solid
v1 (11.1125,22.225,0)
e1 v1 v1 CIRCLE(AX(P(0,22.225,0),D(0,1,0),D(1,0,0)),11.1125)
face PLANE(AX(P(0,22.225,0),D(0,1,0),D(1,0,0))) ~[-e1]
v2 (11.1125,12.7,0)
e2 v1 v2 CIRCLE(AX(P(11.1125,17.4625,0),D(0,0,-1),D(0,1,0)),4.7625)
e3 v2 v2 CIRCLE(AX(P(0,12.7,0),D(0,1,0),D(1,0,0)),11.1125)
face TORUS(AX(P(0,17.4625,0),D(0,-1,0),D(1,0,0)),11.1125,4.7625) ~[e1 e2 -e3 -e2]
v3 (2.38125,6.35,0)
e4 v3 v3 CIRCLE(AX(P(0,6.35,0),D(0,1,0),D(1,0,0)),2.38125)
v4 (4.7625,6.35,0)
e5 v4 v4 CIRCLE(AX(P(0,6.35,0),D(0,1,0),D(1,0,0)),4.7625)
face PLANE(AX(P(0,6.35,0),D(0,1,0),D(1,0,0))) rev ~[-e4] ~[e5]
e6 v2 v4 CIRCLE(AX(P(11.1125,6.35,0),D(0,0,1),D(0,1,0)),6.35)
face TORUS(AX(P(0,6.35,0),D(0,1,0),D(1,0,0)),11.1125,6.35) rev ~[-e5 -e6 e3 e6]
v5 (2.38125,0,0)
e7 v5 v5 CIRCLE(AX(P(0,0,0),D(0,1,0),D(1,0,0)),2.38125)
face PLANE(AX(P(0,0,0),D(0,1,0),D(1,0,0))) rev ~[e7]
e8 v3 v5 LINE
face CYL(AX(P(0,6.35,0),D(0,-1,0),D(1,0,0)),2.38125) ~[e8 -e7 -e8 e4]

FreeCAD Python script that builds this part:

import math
import FreeCAD as App
import Part
import Sketcher
Q = App.Units.Quantity

doc = App.newDocument("Part")
params = doc.addObject("Spreadsheet::Sheet", "Params")
for row, (alias, value) in enumerate([
    ("sketch1_radius", "0.25 in"),
    ("sketch1_radius2", "0.1875 in"),
    ("sketch1_height", "0.25 in"),
    ("sketch1_width", "0.09375 in"),
    ("revolution_angle", "360 deg"),
], start=1):
    params.set(f"A{row}", alias)
    params.set(f"B{row}", "=" + value)
    params.setAlias(f"B{row}", alias)

body = doc.addObject("PartDesign::Body", "Body")

sketch1 = body.newObject("Sketcher::SketchObject", "Sketch")
sketch1.AttachmentSupport = (doc.getObject("XY_Plane"), [""])
sketch1.MapMode = "FlatFace"
sketch1.addGeometry([
    Part.LineSegment(App.Vector(0, 22.2, 0), App.Vector(0, 0, 0)),
    Part.LineSegment(App.Vector(0, 0, 0), App.Vector(2.4, 0, 0)),
    Part.LineSegment(App.Vector(2.4, 0, 0), App.Vector(2.4, 6.3, 0)),
    Part.LineSegment(App.Vector(2.4, 6.3, 0), App.Vector(4.8, 6.3, 0)),
    Part.ArcOfCircle(Part.Circle(App.Vector(11.1, 6.4, 0), App.Vector(0, 0, 1), 6.3), math.radians(90), math.radians(180)),
    Part.ArcOfCircle(Part.Circle(App.Vector(11.1, 17.5, 0), App.Vector(0, 0, 1), 4.8), math.radians(-90), math.radians(90)),
    Part.LineSegment(App.Vector(11.1, 22.2, 0), App.Vector(0, 22.2, 0)),
], False)
sketch1.addConstraint([
    Sketcher.Constraint("Coincident", 0, 2, 1, 1),
    Sketcher.Constraint("Coincident", 1, 2, 2, 1),
    Sketcher.Constraint("Coincident", 2, 2, 3, 1),
    Sketcher.Constraint("Coincident", 3, 2, 4, 2),
    Sketcher.Constraint("Tangent", 4, 1, 5, 1),
    Sketcher.Constraint("Tangent", 5, 2, 6, 1),
    Sketcher.Constraint("Coincident", 6, 2, 0, 1),
    Sketcher.Constraint("Vertical", 0),
    Sketcher.Constraint("Horizontal", 1),
    Sketcher.Constraint("Vertical", 2),
    Sketcher.Constraint("Horizontal", 3),
    Sketcher.Constraint("Horizontal", 6),
    Sketcher.Constraint("Coincident", 0, 2, -1, 1),
    Sketcher.Constraint("Horizontal", 4, 3, 2, 2),
    Sketcher.Constraint("Vertical", 4, 3, 5, 3),
    Sketcher.Constraint("Equal", 1, 3),
    Sketcher.Constraint("Radius", 4, Q("0.25 in")),
    Sketcher.Constraint("Radius", 5, Q("0.1875 in")),
    Sketcher.Constraint("DistanceY", 2, 1, 2, 2, Q("0.25 in")),
    Sketcher.Constraint("DistanceX", 1, 1, 1, 2, Q("0.09375 in")),
])
sketch1.setExpression("Constraints[16]", "Params.sketch1_radius")
sketch1.setExpression("Constraints[17]", "Params.sketch1_radius2")
sketch1.setExpression("Constraints[18]", "Params.sketch1_height")
sketch1.setExpression("Constraints[19]", "Params.sketch1_width")
revolution = body.newObject("PartDesign::Revolution", "Revolution")
revolution.Profile = sketch1
revolution.ReferenceAxis = (sketch1, ["V_Axis"])
revolution.setExpression("Angle", "Params.revolution_angle")

doc.recompute()
